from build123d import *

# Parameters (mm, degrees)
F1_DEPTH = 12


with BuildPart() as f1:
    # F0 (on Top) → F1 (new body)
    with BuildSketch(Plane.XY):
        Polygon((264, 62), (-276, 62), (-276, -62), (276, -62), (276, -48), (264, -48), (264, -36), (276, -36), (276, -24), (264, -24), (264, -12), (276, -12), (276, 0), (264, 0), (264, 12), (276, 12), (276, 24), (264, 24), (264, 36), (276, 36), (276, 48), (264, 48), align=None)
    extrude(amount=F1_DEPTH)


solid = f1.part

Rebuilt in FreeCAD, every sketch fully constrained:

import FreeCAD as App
import Part
import Sketcher

V = App.Vector
Q = App.Units.Quantity


def add_polygon(sketch, points):
    """Adds a closed chain of lines whose ends are joined by coincident constraints."""
    first, n = sketch.GeometryCount, len(points)
    for a, b in zip(points, points[1:] + points[:1]):
        sketch.addGeometry(Part.LineSegment(App.Vector(*a, 0), App.Vector(*b, 0)), False)
    for i in range(n):
        sketch.addConstraint(Sketcher.Constraint("Coincident", first + i, 2, first + (i + 1) % n, 1))

doc = App.newDocument("Part")
body = doc.addObject("PartDesign::Body", "Body")

sketch1 = body.newObject("Sketcher::SketchObject", "Sketch")
sketch1.AttachmentSupport = (doc.getObject("XY_Plane"), [""])
sketch1.MapMode = "FlatFace"
add_polygon(sketch1, [(264, 62), (-276, 62), (-276, -62), (276, -62), (276, -48), (264, -48), (264, -36), (276, -36), (276, -24), (264, -24), (264, -12), (276, -12), (276, 0), (264, 0), (264, 12), (276, 12), (276, 24), (264, 24), (264, 36), (276, 36), (276, 48), (264, 48)])
sketch1.addConstraint(Sketcher.Constraint("Horizontal", 0))
sketch1.addConstraint(Sketcher.Constraint("Vertical", 1))
sketch1.addConstraint(Sketcher.Constraint("Horizontal", 2))
sketch1.addConstraint(Sketcher.Constraint("Vertical", 3))
sketch1.addConstraint(Sketcher.Constraint("Horizontal", 4))
sketch1.addConstraint(Sketcher.Constraint("Vertical", 5))
sketch1.addConstraint(Sketcher.Constraint("Horizontal", 6))
sketch1.addConstraint(Sketcher.Constraint("Vertical", 7))
sketch1.addConstraint(Sketcher.Constraint("Horizontal", 8))
sketch1.addConstraint(Sketcher.Constraint("Vertical", 9))
sketch1.addConstraint(Sketcher.Constraint("Horizontal", 10))
sketch1.addConstraint(Sketcher.Constraint("Vertical", 11))
sketch1.addConstraint(Sketcher.Constraint("Horizontal", 12))
sketch1.addConstraint(Sketcher.Constraint("Vertical", 13))
sketch1.addConstraint(Sketcher.Constraint("Horizontal", 14))
sketch1.addConstraint(Sketcher.Constraint("Vertical", 15))
sketch1.addConstraint(Sketcher.Constraint("Horizontal", 16))
sketch1.addConstraint(Sketcher.Constraint("Vertical", 17))
sketch1.addConstraint(Sketcher.Constraint("Horizontal", 18))
sketch1.addConstraint(Sketcher.Constraint("Vertical", 19))
sketch1.addConstraint(Sketcher.Constraint("Horizontal", 20))
sketch1.addConstraint(Sketcher.Constraint("Vertical", 21))
sketch1.addConstraint(Sketcher.Constraint("Symmetric", 0, 2, 2, 2, -1, 1))
sketch1.addConstraint(Sketcher.Constraint("Symmetric", 9, 2, 13, 2, -1))
sketch1.addConstraint(Sketcher.Constraint("Symmetric", 7, 2, 15, 2, -1))
sketch1.addConstraint(Sketcher.Constraint("Symmetric", 5, 2, 17, 2, -1))
sketch1.addConstraint(Sketcher.Constraint("Symmetric", 3, 2, 19, 2, -1))
sketch1.addConstraint(Sketcher.Constraint("PointOnObject", 11, 2, -1))
sketch1.addConstraint(Sketcher.Constraint("Vertical", 3, 2, 6, 2))
sketch1.addConstraint(Sketcher.Constraint("Vertical", 5, 2, 8, 2))
sketch1.addConstraint(Sketcher.Constraint("Vertical", 7, 2, 10, 2))
sketch1.addConstraint(Sketcher.Constraint("Vertical", 17, 2, 20, 2))
sketch1.addConstraint(Sketcher.Constraint("Equal", 20, 5))
sketch1.addConstraint(Sketcher.Constraint("Equal", 5, 7))
sketch1.addConstraint(Sketcher.Constraint("Equal", 7, 9))
sketch1.addConstraint(Sketcher.Constraint("Equal", 9, 11))
sketch1.addConstraint(Sketcher.Constraint("DistanceX", 0, 2, 0, 1, Q("540 mm")))
sketch1.addConstraint(Sketcher.Constraint("DistanceX", 2, 1, 2, 2, Q("552 mm")))
sketch1.addConstraint(Sketcher.Constraint("DistanceY", 1, 2, 1, 1, Q("124 mm")))
pad1 = body.newObject("PartDesign::Pad", "Pad")
pad1.Profile = sketch1
pad1.Length = 12

doc.recompute()
